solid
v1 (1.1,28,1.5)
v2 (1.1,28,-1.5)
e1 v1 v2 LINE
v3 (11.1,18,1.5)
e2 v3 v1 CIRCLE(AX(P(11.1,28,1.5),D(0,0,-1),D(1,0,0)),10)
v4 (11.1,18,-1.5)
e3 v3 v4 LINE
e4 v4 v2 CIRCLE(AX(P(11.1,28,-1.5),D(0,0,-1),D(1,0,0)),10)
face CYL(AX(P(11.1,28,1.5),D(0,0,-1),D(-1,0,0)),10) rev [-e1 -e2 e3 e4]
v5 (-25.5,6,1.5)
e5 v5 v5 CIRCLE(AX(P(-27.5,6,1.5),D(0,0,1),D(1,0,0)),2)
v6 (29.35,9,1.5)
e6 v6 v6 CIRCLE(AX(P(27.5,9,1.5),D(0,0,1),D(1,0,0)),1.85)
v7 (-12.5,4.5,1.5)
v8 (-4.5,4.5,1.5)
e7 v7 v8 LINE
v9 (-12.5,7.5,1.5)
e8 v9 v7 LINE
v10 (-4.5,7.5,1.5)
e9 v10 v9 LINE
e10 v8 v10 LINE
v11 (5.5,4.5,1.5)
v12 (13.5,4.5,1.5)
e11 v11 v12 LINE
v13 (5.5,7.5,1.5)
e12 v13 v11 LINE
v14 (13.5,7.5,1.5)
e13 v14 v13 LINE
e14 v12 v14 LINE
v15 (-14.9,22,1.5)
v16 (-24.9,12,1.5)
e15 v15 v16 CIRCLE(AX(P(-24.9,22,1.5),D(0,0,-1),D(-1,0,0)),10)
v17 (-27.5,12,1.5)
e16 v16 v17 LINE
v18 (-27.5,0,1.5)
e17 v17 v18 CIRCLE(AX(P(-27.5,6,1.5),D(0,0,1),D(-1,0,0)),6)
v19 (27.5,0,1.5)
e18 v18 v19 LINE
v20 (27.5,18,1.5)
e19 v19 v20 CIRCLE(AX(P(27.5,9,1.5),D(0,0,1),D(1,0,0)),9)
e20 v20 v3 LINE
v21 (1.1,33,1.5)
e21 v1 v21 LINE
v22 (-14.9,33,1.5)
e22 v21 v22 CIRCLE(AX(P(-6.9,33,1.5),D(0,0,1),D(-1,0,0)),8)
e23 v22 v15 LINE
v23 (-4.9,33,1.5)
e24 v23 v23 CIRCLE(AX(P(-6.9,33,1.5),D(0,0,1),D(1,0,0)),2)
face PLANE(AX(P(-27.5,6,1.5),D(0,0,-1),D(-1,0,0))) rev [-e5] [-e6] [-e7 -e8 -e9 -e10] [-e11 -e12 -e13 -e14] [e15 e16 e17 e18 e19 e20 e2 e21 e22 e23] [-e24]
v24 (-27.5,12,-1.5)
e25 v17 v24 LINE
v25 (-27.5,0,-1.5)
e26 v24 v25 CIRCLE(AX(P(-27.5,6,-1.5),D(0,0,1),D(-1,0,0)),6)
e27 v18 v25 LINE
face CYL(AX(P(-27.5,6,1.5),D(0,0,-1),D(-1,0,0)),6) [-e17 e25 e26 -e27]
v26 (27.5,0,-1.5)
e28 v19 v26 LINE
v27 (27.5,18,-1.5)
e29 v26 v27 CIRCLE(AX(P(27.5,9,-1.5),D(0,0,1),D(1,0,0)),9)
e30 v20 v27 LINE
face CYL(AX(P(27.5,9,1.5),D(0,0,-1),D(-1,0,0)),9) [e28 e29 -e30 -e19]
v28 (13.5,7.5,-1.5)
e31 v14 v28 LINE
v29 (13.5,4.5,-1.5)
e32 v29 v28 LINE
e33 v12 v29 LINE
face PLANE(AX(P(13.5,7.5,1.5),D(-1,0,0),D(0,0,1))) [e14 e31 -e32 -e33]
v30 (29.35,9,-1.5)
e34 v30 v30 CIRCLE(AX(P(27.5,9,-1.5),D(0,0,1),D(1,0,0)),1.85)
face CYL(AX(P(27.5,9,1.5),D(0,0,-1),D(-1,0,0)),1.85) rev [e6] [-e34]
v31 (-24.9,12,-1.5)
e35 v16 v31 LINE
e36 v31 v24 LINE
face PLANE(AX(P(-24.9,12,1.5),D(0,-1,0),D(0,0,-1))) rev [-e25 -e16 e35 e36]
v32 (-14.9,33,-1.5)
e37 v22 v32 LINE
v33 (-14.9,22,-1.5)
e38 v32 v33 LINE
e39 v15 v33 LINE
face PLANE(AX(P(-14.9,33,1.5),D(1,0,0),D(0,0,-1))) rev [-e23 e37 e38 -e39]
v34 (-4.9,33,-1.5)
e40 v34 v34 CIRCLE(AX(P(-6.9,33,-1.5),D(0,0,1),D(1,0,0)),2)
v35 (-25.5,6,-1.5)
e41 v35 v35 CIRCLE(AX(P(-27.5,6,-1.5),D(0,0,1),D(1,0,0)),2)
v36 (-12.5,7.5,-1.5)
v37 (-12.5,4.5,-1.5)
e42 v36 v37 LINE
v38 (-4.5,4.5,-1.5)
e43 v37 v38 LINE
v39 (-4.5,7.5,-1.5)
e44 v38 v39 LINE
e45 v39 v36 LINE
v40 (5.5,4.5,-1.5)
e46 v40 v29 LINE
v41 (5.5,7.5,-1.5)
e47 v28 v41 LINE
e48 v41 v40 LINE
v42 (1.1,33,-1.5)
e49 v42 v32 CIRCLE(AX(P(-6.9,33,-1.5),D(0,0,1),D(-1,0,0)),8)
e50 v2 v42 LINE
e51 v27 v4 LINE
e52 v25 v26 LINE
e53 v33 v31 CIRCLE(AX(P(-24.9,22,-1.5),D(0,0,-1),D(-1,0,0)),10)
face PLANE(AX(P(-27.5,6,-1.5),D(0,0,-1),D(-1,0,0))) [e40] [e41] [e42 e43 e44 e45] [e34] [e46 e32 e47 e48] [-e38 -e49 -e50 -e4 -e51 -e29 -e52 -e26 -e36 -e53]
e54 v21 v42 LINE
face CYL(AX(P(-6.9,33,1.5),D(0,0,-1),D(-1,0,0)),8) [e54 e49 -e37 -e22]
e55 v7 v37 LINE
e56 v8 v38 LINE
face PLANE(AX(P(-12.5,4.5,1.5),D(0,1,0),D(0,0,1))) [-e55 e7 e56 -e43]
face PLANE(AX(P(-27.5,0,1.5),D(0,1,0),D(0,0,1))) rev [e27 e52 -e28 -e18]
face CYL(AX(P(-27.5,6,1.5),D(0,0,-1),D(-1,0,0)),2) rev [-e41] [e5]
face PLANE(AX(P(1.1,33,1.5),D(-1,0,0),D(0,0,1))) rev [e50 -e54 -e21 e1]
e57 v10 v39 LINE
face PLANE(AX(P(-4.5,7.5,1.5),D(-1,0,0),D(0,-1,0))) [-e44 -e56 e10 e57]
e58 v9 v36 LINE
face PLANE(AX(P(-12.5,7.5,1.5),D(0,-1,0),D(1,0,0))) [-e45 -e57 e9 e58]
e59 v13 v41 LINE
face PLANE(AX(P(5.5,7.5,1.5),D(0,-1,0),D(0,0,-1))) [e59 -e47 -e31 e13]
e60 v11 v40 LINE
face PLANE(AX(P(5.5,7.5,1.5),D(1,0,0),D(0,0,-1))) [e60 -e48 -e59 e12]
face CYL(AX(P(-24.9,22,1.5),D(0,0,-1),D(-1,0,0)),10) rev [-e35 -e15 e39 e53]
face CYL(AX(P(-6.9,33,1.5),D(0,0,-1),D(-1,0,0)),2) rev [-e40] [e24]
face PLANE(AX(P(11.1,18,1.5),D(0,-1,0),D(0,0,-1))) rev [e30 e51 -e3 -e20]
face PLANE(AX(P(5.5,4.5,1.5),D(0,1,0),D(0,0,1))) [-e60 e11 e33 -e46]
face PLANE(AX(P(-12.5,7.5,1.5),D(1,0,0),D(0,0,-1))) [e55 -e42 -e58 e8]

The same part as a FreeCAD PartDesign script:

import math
import FreeCAD as App
import Part
import Sketcher
Q = App.Units.Quantity

doc = App.newDocument("Part")
params = doc.addObject("Spreadsheet::Sheet", "Params")
for row, (alias, value) in enumerate([
    ("sketch1_diameter", "4 mm"),
    ("sketch1_radius", "9 mm"),
    ("sketch1_radius2", "10 mm"),
    ("sketch1_radius3", "8 mm"),
    ("sketch1_radius4", "6 mm"),
    ("pad1_length", "3 mm"),
], start=1):
    params.set(f"A{row}", alias)
    params.set(f"B{row}", "=" + value)
    params.setAlias(f"B{row}", alias)

body = doc.addObject("PartDesign::Body", "Body")

# Sketch on XY plane
sketch1 = body.newObject("Sketcher::SketchObject", "Sketch")
sketch1.AttachmentSupport = (doc.getObject("XY_Plane"), [""])
sketch1.MapMode = "FlatFace"
sketch1.addGeometry([
    Part.LineSegment(App.Vector(-27.5, 0, 0), App.Vector(27.5, 0, 0)),  # 0
    Part.ArcOfCircle(Part.Circle(App.Vector(27.5, 9, 0), App.Vector(0, 0, 1), 9), math.radians(-90), math.radians(90)),  # 1
    Part.LineSegment(App.Vector(27.5, 18, 0), App.Vector(11.1, 18, 0)),  # 2
    Part.ArcOfCircle(Part.Circle(App.Vector(11.1, 28, 0), App.Vector(0, 0, 1), 10), math.radians(180), math.radians(270)),  # 3
    Part.LineSegment(App.Vector(1.1, 28, 0), App.Vector(1.1, 33, 0)),  # 4
    Part.ArcOfCircle(Part.Circle(App.Vector(-6.9, 33, 0), App.Vector(0, 0, 1), 8), math.radians(0), math.radians(180)),  # 5
    Part.LineSegment(App.Vector(-14.9, 33, 0), App.Vector(-14.9, 22, 0)),  # 6
    Part.ArcOfCircle(Part.Circle(App.Vector(-24.9, 22, 0), App.Vector(0, 0, 1), 10), math.radians(-90), math.radians(0)),  # 7
    Part.LineSegment(App.Vector(-24.9, 12, 0), App.Vector(-27.5, 12, 0)),  # 8
    Part.ArcOfCircle(Part.Circle(App.Vector(-27.5, 6, 0), App.Vector(0, 0, 1), 6), math.radians(90), math.radians(270)),  # 9
    Part.Circle(App.Vector(-27.5, 6, 0), App.Vector(0, 0, 1), 2),  # 10
    Part.LineSegment(App.Vector(-4.5, 4.5, 0), App.Vector(-12.5, 4.5, 0)),  # 11
    Part.LineSegment(App.Vector(-12.5, 4.5, 0), App.Vector(-12.5, 7.5, 0)),  # 12
    Part.LineSegment(App.Vector(-12.5, 7.5, 0), App.Vector(-4.5, 7.5, 0)),  # 13
    Part.LineSegment(App.Vector(-4.5, 7.5, 0), App.Vector(-4.5, 4.5, 0)),  # 14
    Part.LineSegment(App.Vector(13.5, 4.5, 0), App.Vector(5.5, 4.5, 0)),  # 15
    Part.LineSegment(App.Vector(5.5, 4.5, 0), App.Vector(5.5, 7.5, 0)),  # 16
    Part.LineSegment(App.Vector(5.5, 7.5, 0), App.Vector(13.5, 7.5, 0)),  # 17
    Part.LineSegment(App.Vector(13.5, 7.5, 0), App.Vector(13.5, 4.5, 0)),  # 18
    Part.Circle(App.Vector(27.5, 9, 0), App.Vector(0, 0, 1), 1.9),  # 19
    Part.Circle(App.Vector(-6.9, 33, 0), App.Vector(0, 0, 1), 2),  # 20
], False)
sketch1.addConstraint([
    Sketcher.Constraint("Tangent", 0, 2, 1, 1),
    Sketcher.Constraint("Tangent", 1, 2, 2, 1),
    Sketcher.Constraint("Tangent", 2, 2, 3, 2),
    Sketcher.Constraint("Tangent", 3, 1, 4, 1),
    Sketcher.Constraint("Tangent", 4, 2, 5, 1),
    Sketcher.Constraint("Tangent", 5, 2, 6, 1),
    Sketcher.Constraint("Tangent", 6, 2, 7, 2),
    Sketcher.Constraint("Tangent", 7, 1, 8, 1),
    Sketcher.Constraint("Tangent", 8, 2, 9, 1),
    Sketcher.Constraint("Tangent", 9, 2, 0, 1),
    Sketcher.Constraint("Coincident", 11, 2, 12, 1),
    Sketcher.Constraint("Coincident", 12, 2, 13, 1),
    Sketcher.Constraint("Coincident", 13, 2, 14, 1),
    Sketcher.Constraint("Coincident", 14, 2, 11, 1),
    Sketcher.Constraint("Coincident", 15, 2, 16, 1),
    Sketcher.Constraint("Coincident", 16, 2, 17, 1),
    Sketcher.Constraint("Coincident", 17, 2, 18, 1),
    Sketcher.Constraint("Coincident", 18, 2, 15, 1),
    Sketcher.Constraint("Horizontal", 0),
    Sketcher.Constraint("Horizontal", 2),
    Sketcher.Constraint("Vertical", 4),
    Sketcher.Constraint("Vertical", 6),
    Sketcher.Constraint("Horizontal", 8),
    Sketcher.Constraint("Horizontal", 11),
    Sketcher.Constraint("Vertical", 12),
    Sketcher.Constraint("Horizontal", 13),
    Sketcher.Constraint("Vertical", 14),
    Sketcher.Constraint("Horizontal", 15),
    Sketcher.Constraint("Vertical", 16),
    Sketcher.Constraint("Horizontal", 17),
    Sketcher.Constraint("Vertical", 18),
    Sketcher.Constraint("Coincident", 10, 3, 9, 3),
    Sketcher.Constraint("Coincident", 19, 3, 1, 3),
    Sketcher.Constraint("Coincident", 20, 3, 5, 3),
    Sketcher.Constraint("Equal", 3, 7),
    Sketcher.Constraint("Equal", 10, 20),
    Sketcher.Constraint("Symmetric", 0, 2, 9, 2, -1, 1),
    Sketcher.Constraint("Horizontal", 14, 2, 15, 2),
    Sketcher.Constraint("Horizontal", 13, 2, 16, 2),
    Sketcher.Constraint("Equal", 13, 15),
    Sketcher.Constraint("Diameter", 10, Q("4 mm")),
    Sketcher.Constraint("Radius", 1, Q("9 mm")),
    Sketcher.Constraint("Radius", 3, Q("10 mm")),
    Sketcher.Constraint("Radius", 5, Q("8 mm")),
    Sketcher.Constraint("Radius", 9, Q("6 mm")),
    Sketcher.Constraint("Diameter", 19, Q("3.7 mm")),
    Sketcher.Constraint("DistanceX", 0, 1, 0, 2, Q("55 mm")),
    Sketcher.Constraint("DistanceX", 11, 2, 11, 1, Q("8 mm")),
    Sketcher.Constraint("DistanceY", 4, 1, 4, 2, Q("5 mm")),
    Sketcher.Constraint("DistanceY", 12, 1, 12, 2, Q("3 mm")),
    Sketcher.Constraint("DistanceX", 2, 2, 2, 1, Q("16.4 mm")),
    Sketcher.Constraint("DistanceX", 9, 3, 11, 2, Q("15 mm")),
    Sketcher.Constraint("DistanceX", 14, 2, 15, 2, Q("10 mm")),
    Sketcher.Constraint("DistanceY", -1, 1, 11, 2, Q("4.5 mm")),
])
sketch1.setExpression("Constraints[40]", "Params.sketch1_diameter")
sketch1.setExpression("Constraints[41]", "Params.sketch1_radius")
sketch1.setExpression("Constraints[42]", "Params.sketch1_radius2")
sketch1.setExpression("Constraints[43]", "Params.sketch1_radius3")
sketch1.setExpression("Constraints[44]", "Params.sketch1_radius4")
pad1 = body.newObject("PartDesign::Pad", "Pad")
pad1.Profile = sketch1
pad1.setExpression("Length", "Params.pad1_length")
pad1.Midplane = True

doc.recompute()
